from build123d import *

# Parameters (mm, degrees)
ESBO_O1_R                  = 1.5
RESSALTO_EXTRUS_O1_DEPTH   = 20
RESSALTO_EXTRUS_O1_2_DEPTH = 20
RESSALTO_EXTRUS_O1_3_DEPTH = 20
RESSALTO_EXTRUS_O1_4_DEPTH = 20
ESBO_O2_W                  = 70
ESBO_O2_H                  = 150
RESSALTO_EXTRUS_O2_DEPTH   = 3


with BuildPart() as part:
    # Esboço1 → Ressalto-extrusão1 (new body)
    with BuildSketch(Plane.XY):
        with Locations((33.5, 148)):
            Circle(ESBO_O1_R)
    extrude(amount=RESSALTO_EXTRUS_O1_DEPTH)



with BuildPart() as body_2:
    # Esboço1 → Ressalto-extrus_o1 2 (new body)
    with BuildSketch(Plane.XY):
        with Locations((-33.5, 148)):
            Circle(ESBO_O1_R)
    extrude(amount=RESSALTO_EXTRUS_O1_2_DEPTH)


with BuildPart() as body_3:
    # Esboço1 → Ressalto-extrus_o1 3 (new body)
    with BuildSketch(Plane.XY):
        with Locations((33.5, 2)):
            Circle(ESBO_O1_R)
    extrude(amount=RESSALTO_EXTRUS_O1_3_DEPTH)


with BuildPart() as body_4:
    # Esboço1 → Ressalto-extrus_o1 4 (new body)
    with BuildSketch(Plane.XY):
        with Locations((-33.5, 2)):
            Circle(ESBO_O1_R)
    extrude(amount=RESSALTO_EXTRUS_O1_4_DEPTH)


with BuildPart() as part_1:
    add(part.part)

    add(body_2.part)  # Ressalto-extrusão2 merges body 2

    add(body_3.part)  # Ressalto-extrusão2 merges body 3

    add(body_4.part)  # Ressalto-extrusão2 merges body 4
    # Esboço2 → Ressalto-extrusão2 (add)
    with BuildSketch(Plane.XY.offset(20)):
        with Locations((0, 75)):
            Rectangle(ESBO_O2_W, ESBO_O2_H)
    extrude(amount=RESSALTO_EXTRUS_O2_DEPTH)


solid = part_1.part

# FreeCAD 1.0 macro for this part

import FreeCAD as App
import Part
import Sketcher
from FreeCAD import Vector
Q = App.Units.Quantity

doc = App.newDocument("Part")
params = doc.addObject("Spreadsheet::Sheet", "Params")
for row, (alias, value) in enumerate([
    ("sketch1_diameter", "3 mm"),
    ("pad1_length", "20 mm"),
    ("sketch2_diameter", "3 mm"),
    ("pad2_length", "20 mm"),
    ("sketch3_diameter", "3 mm"),
    ("pad3_length", "20 mm"),
    ("sketch4_diameter", "3 mm"),
    ("pad4_length", "20 mm"),
    ("sketch5_width", "70 mm"),
    ("sketch5_height", "150 mm"),
    ("pad5_length", "3 mm"),
], start=1):
    params.set(f"A{row}", alias)
    params.set(f"B{row}", "=" + value)
    params.setAlias(f"B{row}", alias)

body = doc.addObject("PartDesign::Body", "Body")

sketch1 = doc.addObject("Sketcher::SketchObject", "Sketch")
body.addObject(sketch1)
sketch1.AttachmentSupport = (doc.XY_Plane, [""])
sketch1.MapMode = "FlatFace"
sketch1.addGeometry(Part.Circle(Vector(33.5, 148, 0), Vector(0, 0, 1), 1.5), False)
sketch1.addConstraint(Sketcher.Constraint("Diameter", 0, Q("3 mm")))
sketch1.addConstraint(Sketcher.Constraint("DistanceY", -1, 1, 0, 3, Q("148 mm")))
sketch1.addConstraint(Sketcher.Constraint("DistanceX", -1, 1, 0, 3, Q("33.5 mm")))
sketch1.setExpression("Constraints[0]", "Params.sketch1_diameter")
pad1 = doc.addObject("PartDesign::Pad", "Pad")
body.addObject(pad1)
pad1.Profile = sketch1
pad1.setExpression("Length", "Params.pad1_length")
body2 = doc.addObject("PartDesign::Body", "Body001")

sketch2 = doc.addObject("Sketcher::SketchObject", "Sketch001")
body2.addObject(sketch2)
sketch2.AttachmentSupport = (doc.getObject("XY_Plane001"), [""])
sketch2.MapMode = "FlatFace"
sketch2.addGeometry(Part.Circle(Vector(-33.5, 148, 0), Vector(0, 0, 1), 1.5), False)
sketch2.addConstraint(Sketcher.Constraint("Diameter", 0, Q("3 mm")))
sketch2.addConstraint(Sketcher.Constraint("DistanceY", -1, 1, 0, 3, Q("148 mm")))
sketch2.addConstraint(Sketcher.Constraint("DistanceX", 0, 3, -1, 1, Q("33.5 mm")))
sketch2.setExpression("Constraints[0]", "Params.sketch2_diameter")
pad2 = doc.addObject("PartDesign::Pad", "Pad001")
body2.addObject(pad2)
pad2.Profile = sketch2
pad2.setExpression("Length", "Params.pad2_length")
body3 = doc.addObject("PartDesign::Body", "Body002")

sketch3 = doc.addObject("Sketcher::SketchObject", "Sketch002")
body3.addObject(sketch3)
sketch3.AttachmentSupport = (doc.getObject("XY_Plane002"), [""])
sketch3.MapMode = "FlatFace"
sketch3.addGeometry(Part.Circle(Vector(33.5, 2, 0), Vector(0, 0, 1), 1.5), False)
sketch3.addConstraint(Sketcher.Constraint("Diameter", 0, Q("3 mm")))
sketch3.addConstraint(Sketcher.Constraint("DistanceY", -1, 1, 0, 3, Q("2 mm")))
sketch3.addConstraint(Sketcher.Constraint("DistanceX", -1, 1, 0, 3, Q("33.5 mm")))
sketch3.setExpression("Constraints[0]", "Params.sketch3_diameter")
pad3 = doc.addObject("PartDesign::Pad", "Pad002")
body3.addObject(pad3)
pad3.Profile = sketch3
pad3.setExpression("Length", "Params.pad3_length")
body4 = doc.addObject("PartDesign::Body", "Body003")

sketch4 = doc.addObject("Sketcher::SketchObject", "Sketch003")
body4.addObject(sketch4)
sketch4.AttachmentSupport = (doc.getObject("XY_Plane003"), [""])
sketch4.MapMode = "FlatFace"
sketch4.addGeometry(Part.Circle(Vector(-33.5, 2, 0), Vector(0, 0, 1), 1.5), False)
sketch4.addConstraint(Sketcher.Constraint("Diameter", 0, Q("3 mm")))
sketch4.addConstraint(Sketcher.Constraint("DistanceY", -1, 1, 0, 3, Q("2 mm")))
sketch4.addConstraint(Sketcher.Constraint("DistanceX", 0, 3, -1, 1, Q("33.5 mm")))
sketch4.setExpression("Constraints[0]", "Params.sketch4_diameter")
pad4 = doc.addObject("PartDesign::Pad", "Pad003")
body4.addObject(pad4)
pad4.Profile = sketch4
pad4.setExpression("Length", "Params.pad4_length")
body.AllowCompound = True
doc.recompute()

boolean = doc.addObject("PartDesign::Boolean", "Boolean")
body.addObject(boolean)
boolean.Type = "Fuse"
boolean.addObjects([body2])
doc.recompute()

boolean2 = doc.addObject("PartDesign::Boolean", "Boolean001")
body.addObject(boolean2)
boolean2.Type = "Fuse"
boolean2.addObjects([body3])
doc.recompute()

boolean3 = doc.addObject("PartDesign::Boolean", "Boolean002")
body.addObject(boolean3)
boolean3.Type = "Fuse"
boolean3.addObjects([body4])

sketch5 = doc.addObject("Sketcher::SketchObject", "Sketch004")
body.addObject(sketch5)
sketch5.AttachmentSupport = (doc.XY_Plane, [""])
sketch5.MapMode = "FlatFace"
sketch5.AttachmentOffset = App.Placement(Vector(0, 0, 20), App.Rotation())
sketch5.addGeometry(Part.LineSegment(Vector(-35, 150, 0), Vector(-35, 0, 0)), False)
sketch5.addGeometry(Part.LineSegment(Vector(-35, 0, 0), Vector(35, 0, 0)), False)
sketch5.addGeometry(Part.LineSegment(Vector(35, 0, 0), Vector(35, 150, 0)), False)
sketch5.addGeometry(Part.LineSegment(Vector(35, 150, 0), Vector(-35, 150, 0)), False)
sketch5.addConstraint(Sketcher.Constraint("Coincident", 0, 2, 1, 1))
sketch5.addConstraint(Sketcher.Constraint("Coincident", 1, 2, 2, 1))
sketch5.addConstraint(Sketcher.Constraint("Coincident", 2, 2, 3, 1))
sketch5.addConstraint(Sketcher.Constraint("Coincident", 3, 2, 0, 1))
sketch5.addConstraint(Sketcher.Constraint("Vertical", 0))
sketch5.addConstraint(Sketcher.Constraint("Horizontal", 1))
sketch5.addConstraint(Sketcher.Constraint("Vertical", 2))
sketch5.addConstraint(Sketcher.Constraint("Horizontal", 3))
sketch5.addConstraint(Sketcher.Constraint("Symmetric", 0, 2, 1, 2, -1, 1))
sketch5.addConstraint(Sketcher.Constraint("DistanceX", 1, 1, 1, 2, Q("70 mm")))
sketch5.addConstraint(Sketcher.Constraint("DistanceY", 0, 2, 0, 1, Q("150 mm")))
sketch5.setExpression("Constraints[9]", "Params.sketch5_width")
sketch5.setExpression("Constraints[10]", "Params.sketch5_height")
pad5 = doc.addObject("PartDesign::Pad", "Pad004")
body.addObject(pad5)
pad5.Profile = sketch5
pad5.setExpression("Length", "Params.pad5_length")

doc.recompute()
